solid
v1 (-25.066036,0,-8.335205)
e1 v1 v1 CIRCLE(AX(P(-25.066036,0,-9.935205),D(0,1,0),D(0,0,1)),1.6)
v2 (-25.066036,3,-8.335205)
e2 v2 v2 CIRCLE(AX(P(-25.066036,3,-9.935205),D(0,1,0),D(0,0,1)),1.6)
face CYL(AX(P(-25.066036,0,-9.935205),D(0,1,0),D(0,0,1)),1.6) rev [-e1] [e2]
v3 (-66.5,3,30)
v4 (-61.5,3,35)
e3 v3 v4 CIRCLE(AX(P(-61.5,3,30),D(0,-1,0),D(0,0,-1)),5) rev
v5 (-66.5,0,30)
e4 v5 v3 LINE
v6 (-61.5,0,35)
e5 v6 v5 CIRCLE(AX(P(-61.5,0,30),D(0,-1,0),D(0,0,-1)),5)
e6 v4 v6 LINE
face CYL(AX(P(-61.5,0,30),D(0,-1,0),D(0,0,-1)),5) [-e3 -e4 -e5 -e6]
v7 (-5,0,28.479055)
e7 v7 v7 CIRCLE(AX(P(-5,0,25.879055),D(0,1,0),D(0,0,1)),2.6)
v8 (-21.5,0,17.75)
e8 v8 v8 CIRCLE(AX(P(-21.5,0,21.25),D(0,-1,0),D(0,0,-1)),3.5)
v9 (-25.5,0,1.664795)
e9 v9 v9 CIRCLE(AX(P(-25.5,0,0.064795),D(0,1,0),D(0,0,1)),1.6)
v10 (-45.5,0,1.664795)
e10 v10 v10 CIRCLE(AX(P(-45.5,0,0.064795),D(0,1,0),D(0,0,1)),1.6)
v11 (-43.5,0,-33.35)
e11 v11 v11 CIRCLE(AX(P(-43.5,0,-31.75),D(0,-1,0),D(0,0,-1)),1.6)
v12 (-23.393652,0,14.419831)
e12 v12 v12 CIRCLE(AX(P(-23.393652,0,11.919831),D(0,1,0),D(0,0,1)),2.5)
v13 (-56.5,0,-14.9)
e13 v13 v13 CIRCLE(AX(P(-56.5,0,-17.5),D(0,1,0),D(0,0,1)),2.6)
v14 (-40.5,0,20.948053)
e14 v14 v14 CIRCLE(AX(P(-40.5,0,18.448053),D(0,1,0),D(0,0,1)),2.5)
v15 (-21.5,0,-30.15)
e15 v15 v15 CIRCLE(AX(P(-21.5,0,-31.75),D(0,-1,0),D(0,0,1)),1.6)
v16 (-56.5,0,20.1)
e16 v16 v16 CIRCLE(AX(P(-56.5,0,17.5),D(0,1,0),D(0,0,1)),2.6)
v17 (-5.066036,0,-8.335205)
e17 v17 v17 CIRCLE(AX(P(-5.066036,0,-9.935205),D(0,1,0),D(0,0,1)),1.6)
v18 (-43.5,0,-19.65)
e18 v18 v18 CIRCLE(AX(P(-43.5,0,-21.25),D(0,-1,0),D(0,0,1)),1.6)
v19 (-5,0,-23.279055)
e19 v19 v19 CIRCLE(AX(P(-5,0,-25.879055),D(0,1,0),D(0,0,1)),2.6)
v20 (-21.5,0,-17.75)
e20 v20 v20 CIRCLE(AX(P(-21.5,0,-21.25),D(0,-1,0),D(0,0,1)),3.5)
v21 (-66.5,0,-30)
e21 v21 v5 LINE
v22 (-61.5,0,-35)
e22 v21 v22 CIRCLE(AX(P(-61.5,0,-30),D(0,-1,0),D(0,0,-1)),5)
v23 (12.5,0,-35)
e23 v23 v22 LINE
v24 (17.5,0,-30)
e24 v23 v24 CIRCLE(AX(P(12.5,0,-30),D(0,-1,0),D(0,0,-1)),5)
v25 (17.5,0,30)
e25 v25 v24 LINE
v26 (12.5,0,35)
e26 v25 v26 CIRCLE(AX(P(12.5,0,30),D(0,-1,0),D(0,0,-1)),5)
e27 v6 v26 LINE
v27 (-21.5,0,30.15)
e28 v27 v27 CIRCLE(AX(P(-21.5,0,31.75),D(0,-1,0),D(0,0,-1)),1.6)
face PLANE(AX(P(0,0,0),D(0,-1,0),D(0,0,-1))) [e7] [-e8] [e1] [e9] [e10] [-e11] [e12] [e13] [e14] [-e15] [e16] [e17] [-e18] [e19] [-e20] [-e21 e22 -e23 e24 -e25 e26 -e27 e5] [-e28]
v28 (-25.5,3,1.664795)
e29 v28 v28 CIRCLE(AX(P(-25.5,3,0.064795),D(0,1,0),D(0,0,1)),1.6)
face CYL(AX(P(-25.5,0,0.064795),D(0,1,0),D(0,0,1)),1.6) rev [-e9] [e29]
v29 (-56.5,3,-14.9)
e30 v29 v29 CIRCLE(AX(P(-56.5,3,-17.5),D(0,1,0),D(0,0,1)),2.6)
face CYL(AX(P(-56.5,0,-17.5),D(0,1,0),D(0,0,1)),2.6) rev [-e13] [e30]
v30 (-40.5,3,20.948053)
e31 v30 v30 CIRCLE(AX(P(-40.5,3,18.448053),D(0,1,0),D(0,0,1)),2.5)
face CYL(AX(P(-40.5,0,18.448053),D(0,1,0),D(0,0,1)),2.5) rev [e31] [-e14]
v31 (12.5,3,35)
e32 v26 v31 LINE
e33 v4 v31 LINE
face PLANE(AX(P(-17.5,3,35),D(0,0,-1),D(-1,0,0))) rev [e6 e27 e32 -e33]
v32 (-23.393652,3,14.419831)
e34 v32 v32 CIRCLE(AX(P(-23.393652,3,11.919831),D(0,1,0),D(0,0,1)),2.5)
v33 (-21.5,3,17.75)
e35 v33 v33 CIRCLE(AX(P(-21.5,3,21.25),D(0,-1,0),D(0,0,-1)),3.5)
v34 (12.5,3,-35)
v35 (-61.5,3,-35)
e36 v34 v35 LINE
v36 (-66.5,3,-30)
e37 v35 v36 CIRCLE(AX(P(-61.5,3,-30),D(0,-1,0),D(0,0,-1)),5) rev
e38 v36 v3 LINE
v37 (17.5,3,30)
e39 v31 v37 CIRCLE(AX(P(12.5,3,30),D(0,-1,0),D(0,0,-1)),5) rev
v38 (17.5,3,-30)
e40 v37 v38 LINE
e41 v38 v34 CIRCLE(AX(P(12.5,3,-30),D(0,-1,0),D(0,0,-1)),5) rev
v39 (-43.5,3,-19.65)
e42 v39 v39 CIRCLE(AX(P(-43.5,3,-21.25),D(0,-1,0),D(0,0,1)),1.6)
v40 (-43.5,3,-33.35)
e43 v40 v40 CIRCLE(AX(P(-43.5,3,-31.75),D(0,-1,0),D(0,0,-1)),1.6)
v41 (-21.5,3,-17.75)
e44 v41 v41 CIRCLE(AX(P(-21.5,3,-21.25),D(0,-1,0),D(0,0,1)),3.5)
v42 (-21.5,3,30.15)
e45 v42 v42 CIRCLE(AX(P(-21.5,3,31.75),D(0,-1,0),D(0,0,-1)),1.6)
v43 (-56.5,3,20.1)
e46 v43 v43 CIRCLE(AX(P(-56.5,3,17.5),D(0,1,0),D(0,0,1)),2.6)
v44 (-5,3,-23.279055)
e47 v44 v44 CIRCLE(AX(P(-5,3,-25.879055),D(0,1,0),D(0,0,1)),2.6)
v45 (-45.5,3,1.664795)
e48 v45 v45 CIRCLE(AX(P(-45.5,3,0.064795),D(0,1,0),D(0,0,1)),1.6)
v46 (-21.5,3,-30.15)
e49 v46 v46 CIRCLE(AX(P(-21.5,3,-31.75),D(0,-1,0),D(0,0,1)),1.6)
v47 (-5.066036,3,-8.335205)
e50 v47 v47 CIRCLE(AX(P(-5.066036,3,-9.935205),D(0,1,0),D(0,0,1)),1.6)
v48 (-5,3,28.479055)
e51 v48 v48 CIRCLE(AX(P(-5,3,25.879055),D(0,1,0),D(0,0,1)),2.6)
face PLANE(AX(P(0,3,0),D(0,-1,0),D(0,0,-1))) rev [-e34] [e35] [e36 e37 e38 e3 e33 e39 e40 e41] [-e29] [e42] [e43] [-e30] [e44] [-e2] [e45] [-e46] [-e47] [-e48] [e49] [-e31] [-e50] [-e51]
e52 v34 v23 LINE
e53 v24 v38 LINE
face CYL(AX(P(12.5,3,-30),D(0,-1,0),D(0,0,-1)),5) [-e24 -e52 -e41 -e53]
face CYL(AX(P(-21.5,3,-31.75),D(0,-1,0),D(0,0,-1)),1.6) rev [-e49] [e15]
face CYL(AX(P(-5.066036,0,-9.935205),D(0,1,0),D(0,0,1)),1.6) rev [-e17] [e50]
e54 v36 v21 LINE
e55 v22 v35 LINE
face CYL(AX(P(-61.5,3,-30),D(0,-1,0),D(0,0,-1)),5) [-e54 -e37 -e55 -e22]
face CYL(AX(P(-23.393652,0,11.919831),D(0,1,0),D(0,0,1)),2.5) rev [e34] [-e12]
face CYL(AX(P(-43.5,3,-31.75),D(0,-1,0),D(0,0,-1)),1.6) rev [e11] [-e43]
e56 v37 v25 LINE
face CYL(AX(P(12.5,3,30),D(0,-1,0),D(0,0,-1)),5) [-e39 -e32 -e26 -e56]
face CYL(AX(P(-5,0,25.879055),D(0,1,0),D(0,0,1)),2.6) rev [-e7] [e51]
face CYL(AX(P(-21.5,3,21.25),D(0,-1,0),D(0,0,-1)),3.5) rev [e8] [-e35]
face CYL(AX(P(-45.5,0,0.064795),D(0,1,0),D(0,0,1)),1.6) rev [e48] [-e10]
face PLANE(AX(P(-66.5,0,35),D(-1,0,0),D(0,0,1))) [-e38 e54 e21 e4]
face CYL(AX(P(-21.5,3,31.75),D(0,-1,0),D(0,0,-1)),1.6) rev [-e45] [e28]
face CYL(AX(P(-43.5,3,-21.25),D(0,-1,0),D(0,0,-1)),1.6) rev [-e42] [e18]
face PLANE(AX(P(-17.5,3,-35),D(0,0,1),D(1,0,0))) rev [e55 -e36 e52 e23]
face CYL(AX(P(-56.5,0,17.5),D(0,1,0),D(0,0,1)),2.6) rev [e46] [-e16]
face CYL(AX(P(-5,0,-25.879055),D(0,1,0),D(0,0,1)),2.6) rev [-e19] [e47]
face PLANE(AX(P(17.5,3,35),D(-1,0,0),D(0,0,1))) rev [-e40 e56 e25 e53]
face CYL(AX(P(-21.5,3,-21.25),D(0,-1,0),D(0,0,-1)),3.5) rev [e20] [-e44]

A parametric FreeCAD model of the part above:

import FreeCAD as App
import Part
import Sketcher
Q = App.Units.Quantity


def edges_at(feature, points):
    """Names of the edges that pass closest to the given points."""
    edges = feature.Shape.Edges
    near = lambda p: min(range(len(edges)), key=lambda i: edges[i].distToShape(Part.Vertex(*p))[0])
    return sorted({f"Edge{near(p) + 1}" for p in points})


def add_polygon(sketch, points):
    """Adds a closed chain of lines whose ends are joined by coincident constraints."""
    first, n = sketch.GeometryCount, len(points)
    for a, b in zip(points, points[1:] + points[:1]):
        sketch.addGeometry(Part.LineSegment(App.Vector(*a, 0), App.Vector(*b, 0)), False)
    for i in range(n):
        sketch.addConstraint(Sketcher.Constraint("Coincident", first + i, 2, first + (i + 1) % n, 1))

doc = App.newDocument("Part")
params = doc.addObject("Spreadsheet::Sheet", "Params")
for row, (alias, value) in enumerate([
    ("sketch1_diameter", "5.2 mm"),
    ("sketch1_width", "35 mm"),
    ("sketch1_height", "70 mm"),
    ("pad1_length", "3 mm"),
    ("sketch2_diameter", "4.2 mm"),
    ("pocket1_length", "3 mm"),
    ("sketch3_diameter", "5.2 mm"),
    ("pad2_length", "3 mm"),
    ("sketch4_diameter", "4.2 mm"),
    ("sketch5_width", "49 mm"),
    ("sketch5_height", "70 mm"),
    ("pad3_length", "3 mm"),
    ("sketch6_diameter", "4.2 mm"),
    ("pocket3_length", "10 mm"),
    ("sketch7_diameter", "4.2 mm"),
    ("pocket4_length", "10 mm"),
    ("sketch8_diameter", "7 mm"),
    ("sketch8_diameter2", "3.2 mm"),
    ("fillet_radius", "5 mm"),
    ("sketch9_diameter", "4.2 mm"),
    ("pad4_length", "3 mm"),
    ("sketch10_diameter", "3 mm"),
    ("sketch11_diameter", "3 mm"),
    ("pad5_length", "3 mm"),
    ("sketch12_diameter", "5 mm"),
    ("sketch13_diameter", "5.2 mm"),
    ("pad6_length", "3 mm"),
    ("sketch14_diameter", "5 mm"),
    ("pocket8_length", "3 mm"),
    ("pad7_length", "3 mm"),
    ("sketch16_diameter", "5 mm"),
    ("sketch17_diameter", "3 mm"),
    ("sketch17_diameter2", "5 mm"),
    ("sketch17_diameter3", "4.2 mm"),
    ("pad8_length", "3 mm"),
    ("sketch18_diameter", "3 mm"),
    ("sketch19_diameter", "3 mm"),
    ("pad9_length", "3 mm"),
    ("sketch20_diameter", "2.4 mm"),
    ("sketch21_diameter", "3 mm"),
    ("sketch22_diameter", "2.4 mm"),
    ("pad10_length", "3 mm"),
    ("sketch23_diameter", "5 mm"),
    ("pad11_length", "3 mm"),
    ("sketch24_diameter", "2.4 mm"),
    ("sketch25_diameter", "3 mm"),
    ("pad12_length", "3 mm"),
    ("sketch26_diameter", "5 mm"),
    ("sketch27_diameter", "4.2 mm"),
    ("pad13_length", "3 mm"),
    ("sketch28_diameter", "5 mm"),
    ("pad14_length", "3 mm"),
    ("sketch29_diameter", "2.4 mm"),
    ("sketch30_diameter", "3.2 mm"),
    ("sketch30_diameter2", "5.2 mm"),
], start=1):
    params.set(f"A{row}", alias)
    params.set(f"B{row}", "=" + value)
    params.setAlias(f"B{row}", alias)

body = doc.addObject("PartDesign::Body", "Body")

sketch1 = body.newObject("Sketcher::SketchObject", "Sketch")
sketch1.AttachmentSupport = (doc.getObject("XZ_Plane"), [""])
sketch1.MapMode = "FlatFace"
add_polygon(sketch1, [(-17.5, -35), (-17.5, 35), (17.5, 35), (17.5, -35)])
sketch1.addGeometry(Part.Circle(App.Vector(-7.5, 22.5, 0), App.Vector(0, 0, 1), 2.6), False)
sketch1.addGeometry(Part.Circle(App.Vector(-7.5, 10, 0), App.Vector(0, 0, 1), 2.6), False)
sketch1.addGeometry(Part.Circle(App.Vector(-7.5, 0, 0), App.Vector(0, 0, 1), 2.6), False)
sketch1.addGeometry(Part.Circle(App.Vector(-7.5, -10, 0), App.Vector(0, 0, 1), 2.6), False)
sketch1.addGeometry(Part.Circle(App.Vector(-7.5, -22.5, 0), App.Vector(0, 0, 1), 2.6), False)
sketch1.addConstraint(Sketcher.Constraint("Vertical", 0))
sketch1.addConstraint(Sketcher.Constraint("Horizontal", 1))
sketch1.addConstraint(Sketcher.Constraint("Vertical", 2))
sketch1.addConstraint(Sketcher.Constraint("Horizontal", 3))
sketch1.addConstraint(Sketcher.Constraint("Equal", 4, 5))
sketch1.addConstraint(Sketcher.Constraint("Equal", 5, 6))
sketch1.addConstraint(Sketcher.Constraint("Equal", 6, 7))
sketch1.addConstraint(Sketcher.Constraint("Equal", 7, 8))
sketch1.addConstraint(Sketcher.Constraint("Symmetric", 0, 2, 2, 2, -1, 1))
sketch1.addConstraint(Sketcher.Constraint("Symmetric", 5, 3, 7, 3, -1))
sketch1.addConstraint(Sketcher.Constraint("Symmetric", 4, 3, 8, 3, -1))
sketch1.addConstraint(Sketcher.Constraint("PointOnObject", 6, 3, -1))
sketch1.addConstraint(Sketcher.Constraint("Vertical", 4, 3, 5, 3))
sketch1.addConstraint(Sketcher.Constraint("Vertical", 5, 3, 6, 3))
sketch1.addConstraint(Sketcher.Constraint("Diameter", 4, Q("5.2 mm")))
sketch1.addConstraint(Sketcher.Constraint("DistanceX", 1, 1, 1, 2, Q("35 mm")))
sketch1.addConstraint(Sketcher.Constraint("DistanceY", 0, 1, 0, 2, Q("70 mm")))
sketch1.addConstraint(Sketcher.Constraint("DistanceY", -1, 1, 5, 3, Q("10 mm")))
sketch1.addConstraint(Sketcher.Constraint("DistanceY", 8, 3, 4, 3, Q("45 mm")))
sketch1.addConstraint(Sketcher.Constraint("DistanceX", 0, 2, 4, 3, Q("10 mm")))
sketch1.setExpression("Constraints[18]", "Params.sketch1_diameter")
sketch1.setExpression("Constraints[19]", "Params.sketch1_width")
sketch1.setExpression("Constraints[20]", "Params.sketch1_height")
pad1 = body.newObject("PartDesign::Pad", "Pad")
pad1.Profile = sketch1
pad1.setExpression("Length", "Params.pad1_length")
pad1.Reversed = True

sketch2 = body.newObject("Sketcher::SketchObject", "Sketch001")
sketch2.AttachmentSupport = (doc.getObject("XZ_Plane"), [""])
sketch2.MapMode = "FlatFace"
sketch2.AttachmentOffset = App.Placement(App.Vector(0, 0, -3), App.Rotation())
sketch2.addGeometry(Part.Circle(App.Vector(10, 0, 0), App.Vector(0, 0, 1), 2.1), False)
sketch2.addConstraint(Sketcher.Constraint("PointOnObject", 0, 3, -1))
sketch2.addConstraint(Sketcher.Constraint("Diameter", 0, Q("4.2 mm")))
sketch2.addConstraint(Sketcher.Constraint("DistanceX", -1, 1, 0, 3, Q("10 mm")))
sketch2.setExpression("Constraints[1]", "Params.sketch2_diameter")
pocket1 = body.newObject("PartDesign::Pocket", "Pocket")
pocket1.Profile = sketch2
pocket1.setExpression("Length", "Params.pocket1_length")
pocket1.Reversed = True

sketch3 = body.newObject("Sketcher::SketchObject", "Sketch002")
sketch3.AttachmentSupport = (doc.getObject("XZ_Plane"), [""])
sketch3.MapMode = "FlatFace"
sketch3.AttachmentOffset = App.Placement(App.Vector(0, 0, -3), App.Rotation())
sketch3.addGeometry(Part.Circle(App.Vector(-7.5, 10, 0), App.Vector(0, 0, 1), 2.6), False)
sketch3.addGeometry(Part.Circle(App.Vector(-7.5, -10, 0), App.Vector(0, 0, 1), 2.6), False)
sketch3.addConstraint(Sketcher.Constraint("Equal", 0, 1))
sketch3.addConstraint(Sketcher.Constraint("Symmetric", 0, 3, 1, 3, -1))
sketch3.addConstraint(Sketcher.Constraint("Diameter", 0, Q("5.2 mm")))
sketch3.addConstraint(Sketcher.Constraint("DistanceY", -1, 1, 0, 3, Q("10 mm")))
sketch3.addConstraint(Sketcher.Constraint("DistanceX", 0, 3, -1, 1, Q("7.5 mm")))
sketch3.setExpression("Constraints[2]", "Params.sketch3_diameter")
pad2 = body.newObject("PartDesign::Pad", "Pad001")
pad2.Profile = sketch3
pad2.setExpression("Length", "Params.pad2_length")

sketch4 = body.newObject("Sketcher::SketchObject", "Sketch003")
sketch4.AttachmentSupport = (doc.getObject("XZ_Plane"), [""])
sketch4.MapMode = "FlatFace"
sketch4.AttachmentOffset = App.Placement(App.Vector(0, 0, -3), App.Rotation())
sketch4.addGeometry(Part.Circle(App.Vector(10, -22.5, 0), App.Vector(0, 0, 1), 2.1), False)
sketch4.addGeometry(Part.Circle(App.Vector(10, 22.5, 0), App.Vector(0, 0, 1), 2.1), False)
sketch4.addConstraint(Sketcher.Constraint("Equal", 0, 1))
sketch4.addConstraint(Sketcher.Constraint("Symmetric", 0, 3, 1, 3, -1))
sketch4.addConstraint(Sketcher.Constraint("Diameter", 0, Q("4.2 mm")))
sketch4.addConstraint(Sketcher.Constraint("DistanceX", -1, 1, 0, 3, Q("10 mm")))
sketch4.addConstraint(Sketcher.Constraint("DistanceY", 0, 3, 1, 3, Q("45 mm")))
sketch4.setExpression("Constraints[2]", "Params.sketch4_diameter")
pocket2 = body.newObject("PartDesign::Pocket", "Pocket001")
pocket2.Profile = sketch4
pocket2.Type = "ThroughAll"
pocket2.Reversed = True

sketch5 = body.newObject("Sketcher::SketchObject", "Sketch004")
sketch5.AttachmentSupport = (doc.getObject("XZ_Plane"), [""])
sketch5.MapMode = "FlatFace"
sketch5.AttachmentOffset = App.Placement(App.Vector(0, 0, -3), App.Rotation())
add_polygon(sketch5, [(-66.5, -35), (-66.5, 35), (-17.5, 35), (-17.5, -35)])
sketch5.addConstraint(Sketcher.Constraint("Vertical", 0))
sketch5.addConstraint(Sketcher.Constraint("Horizontal", 1))
sketch5.addConstraint(Sketcher.Constraint("Vertical", 2))
sketch5.addConstraint(Sketcher.Constraint("Horizontal", 3))
sketch5.addConstraint(Sketcher.Constraint("DistanceX", 1, 1, 1, 2, Q("49 mm")))
sketch5.addConstraint(Sketcher.Constraint("DistanceY", 0, 1, 0, 2, Q("70 mm")))
sketch5.addConstraint(Sketcher.Constraint("DistanceY", -1, 1, 0, 2, Q("35 mm")))
sketch5.addConstraint(Sketcher.Constraint("DistanceX", 0, 2, -1, 1, Q("66.5 mm")))
sketch5.setExpression("Constraints[8]", "Params.sketch5_width")
sketch5.setExpression("Constraints[9]", "Params.sketch5_height")
pad3 = body.newObject("PartDesign::Pad", "Pad002")
pad3.Profile = sketch5
pad3.setExpression("Length", "Params.pad3_length")

sketch6 = body.newObject("Sketcher::SketchObject", "Sketch005")
sketch6.AttachmentSupport = (doc.getObject("XZ_Plane"), [""])
sketch6.MapMode = "FlatFace"
sketch6.AttachmentOffset = App.Placement(App.Vector(0, 0, -3), App.Rotation())
sketch6.addGeometry(Part.Circle(App.Vector(-44.5, 0, 0), App.Vector(0, 0, 1), 2.1), False)
sketch6.addGeometry(Part.Circle(App.Vector(-36.5, 0, 0), App.Vector(0, 0, 1), 2.1), False)
sketch6.addConstraint(Sketcher.Constraint("Equal", 0, 1))
sketch6.addConstraint(Sketcher.Constraint("PointOnObject", 0, 3, -1))
sketch6.addConstraint(Sketcher.Constraint("PointOnObject", 1, 3, -1))
sketch6.addConstraint(Sketcher.Constraint("Diameter", 0, Q("4.2 mm")))
sketch6.addConstraint(Sketcher.Constraint("DistanceX", 0, 3, 1, 3, Q("8 mm")))
sketch6.addConstraint(Sketcher.Constraint("DistanceX", 0, 3, -1, 1, Q("44.5 mm")))
sketch6.setExpression("Constraints[3]", "Params.sketch6_diameter")
pocket3 = body.newObject("PartDesign::Pocket", "Pocket002")
pocket3.Profile = sketch6
pocket3.setExpression("Length", "Params.pocket3_length")
pocket3.Reversed = True

sketch7 = body.newObject("Sketcher::SketchObject", "Sketch006")
sketch7.AttachmentSupport = (doc.getObject("XZ_Plane"), [""])
sketch7.MapMode = "FlatFace"
sketch7.AttachmentOffset = App.Placement(App.Vector(0, 0, -3), App.Rotation())
sketch7.addGeometry(Part.Circle(App.Vector(-56.5, -17.5, 0), App.Vector(0, 0, 1), 2.1), False)
sketch7.addGeometry(Part.Circle(App.Vector(-56.5, 17.5, 0), App.Vector(0, 0, 1), 2.1), False)
sketch7.addConstraint(Sketcher.Constraint("Equal", 0, 1))
sketch7.addConstraint(Sketcher.Constraint("Symmetric", 0, 3, 1, 3, -1))
sketch7.addConstraint(Sketcher.Constraint("Diameter", 0, Q("4.2 mm")))
sketch7.addConstraint(Sketcher.Constraint("DistanceY", 0, 3, 1, 3, Q("35 mm")))
sketch7.addConstraint(Sketcher.Constraint("DistanceX", 0, 3, -1, 1, Q("56.5 mm")))
sketch7.setExpression("Constraints[2]", "Params.sketch7_diameter")
pocket4 = body.newObject("PartDesign::Pocket", "Pocket003")
pocket4.Profile = sketch7
pocket4.setExpression("Length", "Params.pocket4_length")
pocket4.Reversed = True

sketch8 = body.newObject("Sketcher::SketchObject", "Sketch007")
sketch8.AttachmentSupport = (doc.getObject("XZ_Plane"), [""])
sketch8.MapMode = "FlatFace"
sketch8.addGeometry(Part.Circle(App.Vector(-43.5, -21.25, 0), App.Vector(0, 0, 1), 1.6), False)
sketch8.addGeometry(Part.Circle(App.Vector(-21.5, -31.75, 0), App.Vector(0, 0, 1), 1.6), False)
sketch8.addGeometry(Part.Circle(App.Vector(-43.5, -31.75, 0), App.Vector(0, 0, 1), 1.6), False)
sketch8.addGeometry(Part.Circle(App.Vector(-43.5, 21.25, 0), App.Vector(0, 0, 1), 1.6), False)
sketch8.addGeometry(Part.Circle(App.Vector(-21.5, 31.75, 0), App.Vector(0, 0, 1), 1.6), False)
sketch8.addGeometry(Part.Circle(App.Vector(-43.5, 31.75, 0), App.Vector(0, 0, 1), 1.6), False)
sketch8.addGeometry(Part.Circle(App.Vector(-21.5, 21.25, 0), App.Vector(0, 0, 1), 3.5), False)
sketch8.addGeometry(Part.Circle(App.Vector(-21.5, -21.25, 0), App.Vector(0, 0, 1), 3.5), False)
sketch8.addConstraint(Sketcher.Constraint("Equal", 0, 1))
sketch8.addConstraint(Sketcher.Constraint("Equal", 1, 2))
sketch8.addConstraint(Sketcher.Constraint("Equal", 2, 3))
sketch8.addConstraint(Sketcher.Constraint("Equal", 3, 4))
sketch8.addConstraint(Sketcher.Constraint("Equal", 4, 5))
sketch8.addConstraint(Sketcher.Constraint("Equal", 6, 7))
sketch8.addConstraint(Sketcher.Constraint("Symmetric", 0, 3, 3, 3, -1))
sketch8.addConstraint(Sketcher.Constraint("Symmetric", 1, 3, 4, 3, -1))
sketch8.addConstraint(Sketcher.Constraint("Symmetric", 2, 3, 5, 3, -1))
sketch8.addConstraint(Sketcher.Constraint("Symmetric", 6, 3, 7, 3, -1))
sketch8.addConstraint(Sketcher.Constraint("Horizontal", 1, 3, 2, 3))
sketch8.addConstraint(Sketcher.Constraint("Horizontal", 3, 3, 6, 3))
sketch8.addConstraint(Sketcher.Constraint("Vertical", 0, 3, 2, 3))
sketch8.addConstraint(Sketcher.Constraint("Vertical", 4, 3, 6, 3))
sketch8.addConstraint(Sketcher.Constraint("Diameter", 6, Q("7 mm")))
sketch8.addConstraint(Sketcher.Constraint("Diameter", 0, Q("3.2 mm")))
sketch8.addConstraint(Sketcher.Constraint("DistanceX", 0, 3, 1, 3, Q("22 mm")))
sketch8.addConstraint(Sketcher.Constraint("DistanceY", 2, 3, 3, 3, Q("53 mm")))
sketch8.addConstraint(Sketcher.Constraint("DistanceX", 0, 3, -1, 1, Q("43.5 mm")))
sketch8.addConstraint(Sketcher.Constraint("DistanceY", 1, 3, 0, 3, Q("10.5 mm")))
sketch8.setExpression("Constraints[14]", "Params.sketch8_diameter")
sketch8.setExpression("Constraints[15]", "Params.sketch8_diameter2")
pocket5 = body.newObject("PartDesign::Pocket", "Pocket004")
pocket5.Profile = sketch8
pocket5.Type = "ThroughAll"
doc.recompute()

fillet = body.newObject("PartDesign::Fillet", "Fillet")
fillet.Base = (pocket5, edges_at(pocket5, [
    (-66.5, 1.5, 35),
    (-66.5, 1.5, -35),
    (17.5, 1.5, 35),
    (17.5, 1.5, -35),
]))
fillet.setExpression("Radius", "Params.fillet_radius")

sketch9 = body.newObject("Sketcher::SketchObject", "Sketch008")
sketch9.AttachmentSupport = (doc.getObject("XZ_Plane"), [""])
sketch9.MapMode = "FlatFace"
sketch9.AttachmentOffset = App.Placement(App.Vector(0, 0, -3), App.Rotation())
sketch9.addGeometry(Part.Circle(App.Vector(-36.5, 0, 0), App.Vector(0, 0, 1), 2.1), False)
sketch9.addGeometry(Part.Circle(App.Vector(-44.5, 0, 0), App.Vector(0, 0, 1), 2.1), False)
sketch9.addConstraint(Sketcher.Constraint("Equal", 0, 1))
sketch9.addConstraint(Sketcher.Constraint("PointOnObject", 0, 3, -1))
sketch9.addConstraint(Sketcher.Constraint("PointOnObject", 1, 3, -1))
sketch9.addConstraint(Sketcher.Constraint("Diameter", 0, Q("4.2 mm")))
sketch9.addConstraint(Sketcher.Constraint("DistanceX", 1, 3, 0, 3, Q("8 mm")))
sketch9.addConstraint(Sketcher.Constraint("DistanceX", 0, 3, -1, 1, Q("36.5 mm")))
sketch9.setExpression("Constraints[3]", "Params.sketch9_diameter")
pad4 = body.newObject("PartDesign::Pad", "Pad003")
pad4.Profile = sketch9
pad4.setExpression("Length", "Params.pad4_length")

sketch10 = body.newObject("Sketcher::SketchObject", "Sketch009")
sketch10.AttachmentSupport = (doc.getObject("XZ_Plane"), [""])
sketch10.MapMode = "FlatFace"
sketch10.AttachmentOffset = App.Placement(App.Vector(0, 0, -3), App.Rotation())
sketch10.addGeometry(Part.Circle(App.Vector(-52.5, -0.000001, 0), App.Vector(0, 0, 1), 1.5), False)
sketch10.addGeometry(Part.Circle(App.Vector(-28.5, -0.000001, 0), App.Vector(0, 0, 1), 1.5), False)
sketch10.addConstraint(Sketcher.Constraint("Equal", 0, 1))
sketch10.addConstraint(Sketcher.Constraint("PointOnObject", 0, 3, -1))
sketch10.addConstraint(Sketcher.Constraint("PointOnObject", 1, 3, -1))
sketch10.addConstraint(Sketcher.Constraint("Diameter", 0, Q("3 mm")))
sketch10.addConstraint(Sketcher.Constraint("DistanceX", 0, 3, 1, 3, Q("24 mm")))
sketch10.addConstraint(Sketcher.Constraint("DistanceX", 0, 3, -1, 1, Q("52.5 mm")))
sketch10.setExpression("Constraints[3]", "Params.sketch10_diameter")
pocket6 = body.newObject("PartDesign::Pocket", "Pocket005")
pocket6.Profile = sketch10
pocket6.Type = "ThroughAll"
pocket6.Reversed = True

sketch11 = body.newObject("Sketcher::SketchObject", "Sketch010")
sketch11.AttachmentSupport = (doc.getObject("XZ_Plane"), [""])
sketch11.MapMode = "FlatFace"
sketch11.AttachmentOffset = App.Placement(App.Vector(0, 0, -3), App.Rotation())
sketch11.addGeometry(Part.Circle(App.Vector(-28.5, -0.000001, 0), App.Vector(0, 0, 1), 1.5), False)
sketch11.addConstraint(Sketcher.Constraint("PointOnObject", 0, 3, -1))
sketch11.addConstraint(Sketcher.Constraint("Diameter", 0, Q("3 mm")))
sketch11.addConstraint(Sketcher.Constraint("DistanceX", 0, 3, -1, 1, Q("28.5 mm")))
sketch11.setExpression("Constraints[1]", "Params.sketch11_diameter")
pad5 = body.newObject("PartDesign::Pad", "Pad004")
pad5.Profile = sketch11
pad5.setExpression("Length", "Params.pad5_length")

sketch12 = body.newObject("Sketcher::SketchObject", "Sketch011")
sketch12.AttachmentSupport = (doc.getObject("XZ_Plane"), [""])
sketch12.MapMode = "FlatFace"
sketch12.AttachmentOffset = App.Placement(App.Vector(0, 0, -3), App.Rotation())
sketch12.addGeometry(Part.Circle(App.Vector(-23.393651, -12.166498, 0), App.Vector(0, 0, 1), 2.5), False)
sketch12.addGeometry(Part.Circle(App.Vector(-23.393652, 11.919831, 0), App.Vector(0, 0, 1), 2.5), False)
sketch12.addConstraint(Sketcher.Constraint("Equal", 0, 1))
sketch12.addConstraint(Sketcher.Constraint("Vertical", 0, 3, 1, 3))
sketch12.addConstraint(Sketcher.Constraint("Diameter", 0, Q("5 mm")))
sketch12.addConstraint(Sketcher.Constraint("DistanceX", 0, 3, -1, 1, Q("23.393651 mm")))
sketch12.addConstraint(Sketcher.Constraint("DistanceY", -1, 1, 1, 3, Q("11.919831 mm")))
sketch12.addConstraint(Sketcher.Constraint("DistanceY", 0, 3, 1, 3, Q("24.086328 mm")))
sketch12.setExpression("Constraints[2]", "Params.sketch12_diameter")
pocket7 = body.newObject("PartDesign::Pocket", "Pocket006")
pocket7.Profile = sketch12
pocket7.Type = "ThroughAll"
pocket7.Reversed = True

sketch13 = body.newObject("Sketcher::SketchObject", "Sketch012")
sketch13.AttachmentSupport = (doc.getObject("XZ_Plane"), [""])
sketch13.MapMode = "FlatFace"
sketch13.AttachmentOffset = App.Placement(App.Vector(0, 0, -3), App.Rotation())
sketch13.addGeometry(Part.Circle(App.Vector(-7.5, -22.5, 0), App.Vector(0, 0, 1), 2.6), False)
sketch13.addGeometry(Part.Circle(App.Vector(-7.5, 0, 0), App.Vector(0, 0, 1), 2.6), False)
sketch13.addGeometry(Part.Circle(App.Vector(-7.5, 22.5, 0), App.Vector(0, 0, 1), 2.6), False)
sketch13.addConstraint(Sketcher.Constraint("Equal", 0, 1))
sketch13.addConstraint(Sketcher.Constraint("Equal", 1, 2))
sketch13.addConstraint(Sketcher.Constraint("Symmetric", 0, 3, 2, 3, -1))
sketch13.addConstraint(Sketcher.Constraint("PointOnObject", 1, 3, -1))
sketch13.addConstraint(Sketcher.Constraint("Vertical", 0, 3, 1, 3))
sketch13.addConstraint(Sketcher.Constraint("Diameter", 0, Q("5.2 mm")))
sketch13.addConstraint(Sketcher.Constraint("DistanceY", 0, 3, 2, 3, Q("45 mm")))
sketch13.addConstraint(Sketcher.Constraint("DistanceX", 0, 3, -1, 1, Q("7.5 mm")))
sketch13.setExpression("Constraints[5]", "Params.sketch13_diameter")
pad6 = body.newObject("PartDesign::Pad", "Pad005")
pad6.Profile = sketch13
pad6.setExpression("Length", "Params.pad6_length")

sketch14 = body.newObject("Sketcher::SketchObject", "Sketch013")
sketch14.AttachmentSupport = (doc.getObject("XZ_Plane"), [""])
sketch14.MapMode = "FlatFace"
sketch14.addGeometry(Part.Circle(App.Vector(-3.558761, 0, 0), App.Vector(0, 0, 1), 2.5), False)
sketch14.addGeometry(Part.Circle(App.Vector(-3.558761, 22.202338, 0), App.Vector(0, 0, 1), 2.5), False)
sketch14.addGeometry(Part.Circle(App.Vector(-3.558761, -23.518794, 0), App.Vector(0, 0, 1), 2.5), False)
sketch14.addConstraint(Sketcher.Constraint("Equal", 0, 1))
sketch14.addConstraint(Sketcher.Constraint("Equal", 1, 2))
sketch14.addConstraint(Sketcher.Constraint("PointOnObject", 0, 3, -1))
sketch14.addConstraint(Sketcher.Constraint("Vertical", 0, 3, 1, 3))
sketch14.addConstraint(Sketcher.Constraint("Vertical", 1, 3, 2, 3))
sketch14.addConstraint(Sketcher.Constraint("Diameter", 0, Q("5 mm")))
sketch14.addConstraint(Sketcher.Constraint("DistanceX", 0, 3, -1, 1, Q("3.558761 mm")))
sketch14.addConstraint(Sketcher.Constraint("DistanceY", -1, 1, 1, 3, Q("22.202338 mm")))
sketch14.addConstraint(Sketcher.Constraint("DistanceY", 2, 3, -1, 1, Q("23.518794 mm")))
sketch14.setExpression("Constraints[5]", "Params.sketch14_diameter")
pocket8 = body.newObject("PartDesign::Pocket", "Pocket007")
pocket8.Profile = sketch14
pocket8.setExpression("Length", "Params.pocket8_length")

sketch15 = body.newObject("Sketcher::SketchObject", "Sketch014")
sketch15.AttachmentSupport = (doc.getObject("XZ_Plane"), [""])
sketch15.MapMode = "FlatFace"
sketch15.addGeometry(Part.Circle(App.Vector(-43.5, 21.25, 0), App.Vector(0, 0, 1), 2.180799), False)
sketch15.addGeometry(Part.Circle(App.Vector(-43.5, 31.75, 0), App.Vector(0, 0, 1), 1.661771), False)
sketch15.addConstraint(Sketcher.Constraint("Vertical", 0, 3, 1, 3))
sketch15.addConstraint(Sketcher.Constraint("DistanceX", 0, 3, -1, 1, Q("43.5 mm")))
sketch15.addConstraint(Sketcher.Constraint("DistanceY", 0, 3, 1, 3, Q("10.5 mm")))
sketch15.addConstraint(Sketcher.Constraint("Diameter", 1, Q("3.323542 mm")))
sketch15.addConstraint(Sketcher.Constraint("DistanceY", -1, 1, 0, 3, Q("21.25 mm")))
sketch15.addConstraint(Sketcher.Constraint("Diameter", 0, Q("4.361597 mm")))
pad7 = body.newObject("PartDesign::Pad", "Pad006")
pad7.Profile = sketch15
pad7.setExpression("Length", "Params.pad7_length")
pad7.Reversed = True

sketch16 = body.newObject("Sketcher::SketchObject", "Sketch015")
sketch16.AttachmentSupport = (doc.getObject("XZ_Plane"), [""])
sketch16.MapMode = "FlatFace"
sketch16.AttachmentOffset = App.Placement(App.Vector(0, 0, -3), App.Rotation())
sketch16.addGeometry(Part.Circle(App.Vector(-40.5, -1.551947, 0), App.Vector(0, 0, 1), 2.5), False)
sketch16.addGeometry(Part.Circle(App.Vector(-40.5, 18.448053, 0), App.Vector(0, 0, 1), 2.5), False)
sketch16.addConstraint(Sketcher.Constraint("Equal", 0, 1))
sketch16.addConstraint(Sketcher.Constraint("Vertical", 0, 3, 1, 3))
sketch16.addConstraint(Sketcher.Constraint("Diameter", 0, Q("5 mm")))
sketch16.addConstraint(Sketcher.Constraint("DistanceY", 0, 3, 1, 3, Q("20 mm")))
sketch16.addConstraint(Sketcher.Constraint("DistanceX", 0, 3, -1, 1, Q("40.5 mm")))
sketch16.addConstraint(Sketcher.Constraint("DistanceY", 0, 3, -1, 1, Q("1.551947 mm")))
sketch16.setExpression("Constraints[2]", "Params.sketch16_diameter")
pocket9 = body.newObject("PartDesign::Pocket", "Pocket008")
pocket9.Profile = sketch16
pocket9.Type = "ThroughAll"
pocket9.Reversed = True

sketch17 = body.newObject("Sketcher::SketchObject", "Sketch016")
sketch17.AttachmentSupport = (doc.getObject("XZ_Plane"), [""])
sketch17.MapMode = "FlatFace"
sketch17.AttachmentOffset = App.Placement(App.Vector(0, 0, -3), App.Rotation())
sketch17.addGeometry(Part.Circle(App.Vector(-52.5, -0.000001, 0), App.Vector(0, 0, 1), 1.5), False)
sketch17.addGeometry(Part.Circle(App.Vector(-40.5, -1.551947, 0), App.Vector(0, 0, 1), 2.5), False)
sketch17.addGeometry(Part.Circle(App.Vector(-3.558761, 0, 0), App.Vector(0, 0, 1), 2.5), False)
sketch17.addGeometry(Part.Circle(App.Vector(10, 0, 0), App.Vector(0, 0, 1), 2.1), False)
sketch17.addConstraint(Sketcher.Constraint("Equal", 1, 2))
sketch17.addConstraint(Sketcher.Constraint("PointOnObject", 0, 3, -1))
sketch17.addConstraint(Sketcher.Constraint("PointOnObject", 2, 3, -1))
sketch17.addConstraint(Sketcher.Constraint("PointOnObject", 3, 3, -1))
sketch17.addConstraint(Sketcher.Constraint("Diameter", 0, Q("3 mm")))
sketch17.addConstraint(Sketcher.Constraint("Diameter", 1, Q("5 mm")))
sketch17.addConstraint(Sketcher.Constraint("Diameter", 3, Q("4.2 mm")))
sketch17.addConstraint(Sketcher.Constraint("DistanceX", -1, 1, 3, 3, Q("10 mm")))
sketch17.addConstraint(Sketcher.Constraint("DistanceX", 0, 3, 1, 3, Q("12 mm")))
sketch17.addConstraint(Sketcher.Constraint("DistanceX", 0, 3, -1, 1, Q("52.5 mm")))
sketch17.addConstraint(Sketcher.Constraint("DistanceX", 2, 3, -1, 1, Q("3.558761 mm")))
sketch17.addConstraint(Sketcher.Constraint("DistanceY", 1, 3, -1, 1, Q("1.551947 mm")))
sketch17.setExpression("Constraints[4]", "Params.sketch17_diameter")
sketch17.setExpression("Constraints[5]", "Params.sketch17_diameter2")
sketch17.setExpression("Constraints[6]", "Params.sketch17_diameter3")
pad8 = body.newObject("PartDesign::Pad", "Pad007")
pad8.Profile = sketch17
pad8.setExpression("Length", "Params.pad8_length")

sketch18 = body.newObject("Sketcher::SketchObject", "Sketch017")
sketch18.AttachmentSupport = (doc.getObject("XZ_Plane"), [""])
sketch18.MapMode = "FlatFace"
sketch18.AttachmentOffset = App.Placement(App.Vector(0, 0, -3), App.Rotation())
sketch18.addGeometry(Part.Circle(App.Vector(-52.5, 0, 0), App.Vector(0, 0, 1), 1.5), False)
sketch18.addGeometry(Part.Circle(App.Vector(-28.5, 0, 0), App.Vector(0, 0, 1), 1.5), False)
sketch18.addConstraint(Sketcher.Constraint("Equal", 0, 1))
sketch18.addConstraint(Sketcher.Constraint("PointOnObject", 0, 3, -1))
sketch18.addConstraint(Sketcher.Constraint("PointOnObject", 1, 3, -1))
sketch18.addConstraint(Sketcher.Constraint("Diameter", 0, Q("3 mm")))
sketch18.addConstraint(Sketcher.Constraint("DistanceX", 0, 3, 1, 3, Q("24 mm")))
sketch18.addConstraint(Sketcher.Constraint("DistanceX", 0, 3, -1, 1, Q("52.5 mm")))
sketch18.setExpression("Constraints[3]", "Params.sketch18_diameter")
pocket10 = body.newObject("PartDesign::Pocket", "Pocket009")
pocket10.Profile = sketch18
pocket10.Type = "ThroughAll"
pocket10.Reversed = True

sketch19 = body.newObject("Sketcher::SketchObject", "Sketch018")
sketch19.AttachmentSupport = (doc.getObject("XZ_Plane"), [""])
sketch19.MapMode = "FlatFace"
sketch19.AttachmentOffset = App.Placement(App.Vector(0, 0, -3), App.Rotation())
sketch19.addGeometry(Part.Circle(App.Vector(-52.5, 0, 0), App.Vector(0, 0, 1), 1.5), False)
sketch19.addGeometry(Part.Circle(App.Vector(-28.5, 0, 0), App.Vector(0, 0, 1), 1.5), False)
sketch19.addConstraint(Sketcher.Constraint("Equal", 0, 1))
sketch19.addConstraint(Sketcher.Constraint("PointOnObject", 0, 3, -1))
sketch19.addConstraint(Sketcher.Constraint("PointOnObject", 1, 3, -1))
sketch19.addConstraint(Sketcher.Constraint("Diameter", 0, Q("3 mm")))
sketch19.addConstraint(Sketcher.Constraint("DistanceX", 0, 3, 1, 3, Q("24 mm")))
sketch19.addConstraint(Sketcher.Constraint("DistanceX", 0, 3, -1, 1, Q("52.5 mm")))
sketch19.setExpression("Constraints[3]", "Params.sketch19_diameter")
pad9 = body.newObject("PartDesign::Pad", "Pad008")
pad9.Profile = sketch19
pad9.setExpression("Length", "Params.pad9_length")

sketch20 = body.newObject("Sketcher::SketchObject", "Sketch019")
sketch20.AttachmentSupport = (doc.getObject("XZ_Plane"), [""])
sketch20.MapMode = "FlatFace"
sketch20.AttachmentOffset = App.Placement(App.Vector(0, 0, -3), App.Rotation())
sketch20.addGeometry(Part.Circle(App.Vector(-45.5, 0.064795, 0), App.Vector(0, 0, 1), 1.2), False)
sketch20.addGeometry(Part.Circle(App.Vector(-25.5, 0.064795, 0), App.Vector(0, 0, 1), 1.2), False)
sketch20.addConstraint(Sketcher.Constraint("Equal", 0, 1))
sketch20.addConstraint(Sketcher.Constraint("Horizontal", 0, 3, 1, 3))
sketch20.addConstraint(Sketcher.Constraint("Diameter", 0, Q("2.4 mm")))
sketch20.addConstraint(Sketcher.Constraint("DistanceX", 0, 3, 1, 3, Q("20 mm")))
sketch20.addConstraint(Sketcher.Constraint("DistanceX", 0, 3, -1, 1, Q("45.5 mm")))
sketch20.addConstraint(Sketcher.Constraint("DistanceY", -1, 1, 0, 3, Q("0.064795 mm")))
sketch20.setExpression("Constraints[2]", "Params.sketch20_diameter")
pocket11 = body.newObject("PartDesign::Pocket", "Pocket010")
pocket11.Profile = sketch20
pocket11.Type = "ThroughAll"
pocket11.Reversed = True

sketch21 = body.newObject("Sketcher::SketchObject", "Sketch020")
sketch21.AttachmentSupport = (doc.getObject("XZ_Plane"), [""])
sketch21.MapMode = "FlatFace"
sketch21.addGeometry(Part.Circle(App.Vector(-52.5, 0, 0), App.Vector(0, 0, 1), 1.5), False)
sketch21.addGeometry(Part.Circle(App.Vector(-28.5, 0, 0), App.Vector(0, 0, 1), 1.5), False)
sketch21.addConstraint(Sketcher.Constraint("Equal", 0, 1))
sketch21.addConstraint(Sketcher.Constraint("PointOnObject", 0, 3, -1))
sketch21.addConstraint(Sketcher.Constraint("PointOnObject", 1, 3, -1))
sketch21.addConstraint(Sketcher.Constraint("Diameter", 0, Q("3 mm")))
sketch21.addConstraint(Sketcher.Constraint("DistanceX", 0, 3, 1, 3, Q("24 mm")))
sketch21.addConstraint(Sketcher.Constraint("DistanceX", 0, 3, -1, 1, Q("52.5 mm")))
sketch21.setExpression("Constraints[3]", "Params.sketch21_diameter")
pocket12 = body.newObject("PartDesign::Pocket", "Pocket011")
pocket12.Profile = sketch21
pocket12.Type = "ThroughAll"

sketch22 = body.newObject("Sketcher::SketchObject", "Sketch021")
sketch22.AttachmentSupport = (doc.getObject("XZ_Plane"), [""])
sketch22.MapMode = "FlatFace"
sketch22.addGeometry(Part.Circle(App.Vector(-25.5, 0.064795, 0), App.Vector(0, 0, 1), 1.2), False)
sketch22.addGeometry(Part.Circle(App.Vector(-45.5, 0.064795, 0), App.Vector(0, 0, 1), 1.228913), False)
sketch22.addConstraint(Sketcher.Constraint("Horizontal", 0, 3, 1, 3))
sketch22.addConstraint(Sketcher.Constraint("Diameter", 0, Q("2.4 mm")))
sketch22.addConstraint(Sketcher.Constraint("DistanceX", 1, 3, 0, 3, Q("20 mm")))
sketch22.addConstraint(Sketcher.Constraint("DistanceX", 0, 3, -1, 1, Q("25.5 mm")))
sketch22.addConstraint(Sketcher.Constraint("Diameter", 1, Q("2.457825 mm")))
sketch22.addConstraint(Sketcher.Constraint("DistanceY", -1, 1, 0, 3, Q("0.064795 mm")))
sketch22.setExpression("Constraints[1]", "Params.sketch22_diameter")
pad10 = body.newObject("PartDesign::Pad", "Pad009")
pad10.Profile = sketch22
pad10.setExpression("Length", "Params.pad10_length")
pad10.Reversed = True

sketch23 = body.newObject("Sketcher::SketchObject", "Sketch022")
sketch23.AttachmentSupport = (doc.getObject("XZ_Plane"), [""])
sketch23.MapMode = "FlatFace"
sketch23.AttachmentOffset = App.Placement(App.Vector(0, 0, -3), App.Rotation())
sketch23.addGeometry(Part.Circle(App.Vector(-3.558761, 22.202338, 0), App.Vector(0, 0, 1), 2.5), False)
sketch23.addGeometry(Part.Circle(App.Vector(-3.558761, -23.518794, 0), App.Vector(0, 0, 1), 2.5), False)
sketch23.addConstraint(Sketcher.Constraint("Equal", 0, 1))
sketch23.addConstraint(Sketcher.Constraint("Vertical", 0, 3, 1, 3))
sketch23.addConstraint(Sketcher.Constraint("Diameter", 0, Q("5 mm")))
sketch23.addConstraint(Sketcher.Constraint("DistanceX", 0, 3, -1, 1, Q("3.558761 mm")))
sketch23.addConstraint(Sketcher.Constraint("DistanceY", -1, 1, 0, 3, Q("22.202338 mm")))
sketch23.addConstraint(Sketcher.Constraint("DistanceY", 1, 3, -1, 1, Q("23.518794 mm")))
sketch23.setExpression("Constraints[2]", "Params.sketch23_diameter")
pad11 = body.newObject("PartDesign::Pad", "Pad010")
pad11.Profile = sketch23
pad11.setExpression("Length", "Params.pad11_length")

sketch24 = body.newObject("Sketcher::SketchObject", "Sketch023")
sketch24.AttachmentSupport = (doc.getObject("XZ_Plane"), [""])
sketch24.MapMode = "FlatFace"
sketch24.AttachmentOffset = App.Placement(App.Vector(0, 0, -3), App.Rotation())
sketch24.addGeometry(Part.Circle(App.Vector(-25.5, 0.064795, 0), App.Vector(0, 0, 1), 1.2), False)
sketch24.addGeometry(Part.Circle(App.Vector(-45.5, 0.064795, 0), App.Vector(0, 0, 1), 1.2), False)
sketch24.addConstraint(Sketcher.Constraint("Equal", 0, 1))
sketch24.addConstraint(Sketcher.Constraint("Horizontal", 0, 3, 1, 3))
sketch24.addConstraint(Sketcher.Constraint("Diameter", 0, Q("2.4 mm")))
sketch24.addConstraint(Sketcher.Constraint("DistanceX", 1, 3, 0, 3, Q("20 mm")))
sketch24.addConstraint(Sketcher.Constraint("DistanceX", 0, 3, -1, 1, Q("25.5 mm")))
sketch24.addConstraint(Sketcher.Constraint("DistanceY", -1, 1, 0, 3, Q("0.064795 mm")))
sketch24.setExpression("Constraints[2]", "Params.sketch24_diameter")
pocket13 = body.newObject("PartDesign::Pocket", "Pocket012")
pocket13.Profile = sketch24
pocket13.Type = "ThroughAll"
pocket13.Reversed = True

sketch25 = body.newObject("Sketcher::SketchObject", "Sketch024")
sketch25.AttachmentSupport = (doc.getObject("XZ_Plane"), [""])
sketch25.MapMode = "FlatFace"
sketch25.AttachmentOffset = App.Placement(App.Vector(0, 0, -3), App.Rotation())
sketch25.addGeometry(Part.Circle(App.Vector(-28.5, 0, 0), App.Vector(0, 0, 1), 1.5), False)
sketch25.addGeometry(Part.Circle(App.Vector(-52.5, 0, 0), App.Vector(0, 0, 1), 1.5), False)
sketch25.addConstraint(Sketcher.Constraint("Equal", 0, 1))
sketch25.addConstraint(Sketcher.Constraint("PointOnObject", 0, 3, -1))
sketch25.addConstraint(Sketcher.Constraint("PointOnObject", 1, 3, -1))
sketch25.addConstraint(Sketcher.Constraint("Diameter", 0, Q("3 mm")))
sketch25.addConstraint(Sketcher.Constraint("DistanceX", 1, 3, 0, 3, Q("24 mm")))
sketch25.addConstraint(Sketcher.Constraint("DistanceX", 0, 3, -1, 1, Q("28.5 mm")))
sketch25.setExpression("Constraints[3]", "Params.sketch25_diameter")
pad12 = body.newObject("PartDesign::Pad", "Pad011")
pad12.Profile = sketch25
pad12.setExpression("Length", "Params.pad12_length")

sketch26 = body.newObject("Sketcher::SketchObject", "Sketch025")
sketch26.AttachmentSupport = (doc.getObject("XZ_Plane"), [""])
sketch26.MapMode = "FlatFace"
sketch26.addGeometry(Part.Circle(App.Vector(-5, 25.879055, 0), App.Vector(0, 0, 1), 2.5), False)
sketch26.addGeometry(Part.Circle(App.Vector(-5, -25.879055, 0), App.Vector(0, 0, 1), 2.5), False)
sketch26.addConstraint(Sketcher.Constraint("Equal", 0, 1))
sketch26.addConstraint(Sketcher.Constraint("Symmetric", 0, 3, 1, 3, -1))
sketch26.addConstraint(Sketcher.Constraint("Diameter", 0, Q("5 mm")))
sketch26.addConstraint(Sketcher.Constraint("DistanceX", 0, 3, -1, 1, Q("5 mm")))
sketch26.addConstraint(Sketcher.Constraint("DistanceY", 1, 3, 0, 3, Q("51.758111 mm")))
sketch26.setExpression("Constraints[2]", "Params.sketch26_diameter")
pocket14 = body.newObject("PartDesign::Pocket", "Pocket013")
pocket14.Profile = sketch26
pocket14.Type = "ThroughAll"

sketch27 = body.newObject("Sketcher::SketchObject", "Sketch026")
sketch27.AttachmentSupport = (doc.getObject("XZ_Plane"), [""])
sketch27.MapMode = "FlatFace"
sketch27.AttachmentOffset = App.Placement(App.Vector(0, 0, -3), App.Rotation())
sketch27.addGeometry(Part.Circle(App.Vector(10, 22.5, 0), App.Vector(0, 0, 1), 2.622024), False)
sketch27.addGeometry(Part.Circle(App.Vector(10, -22.5, 0), App.Vector(0, 0, 1), 2.1), False)
sketch27.addConstraint(Sketcher.Constraint("Symmetric", 0, 3, 1, 3, -1))
sketch27.addConstraint(Sketcher.Constraint("Diameter", 1, Q("4.2 mm")))
sketch27.addConstraint(Sketcher.Constraint("DistanceX", -1, 1, 0, 3, Q("10 mm")))
sketch27.addConstraint(Sketcher.Constraint("DistanceY", 1, 3, 0, 3, Q("45 mm")))
sketch27.addConstraint(Sketcher.Constraint("Diameter", 0, Q("5.244047 mm")))
sketch27.setExpression("Constraints[1]", "Params.sketch27_diameter")
pad13 = body.newObject("PartDesign::Pad", "Pad012")
pad13.Profile = sketch27
pad13.setExpression("Length", "Params.pad13_length")

sketch28 = body.newObject("Sketcher::SketchObject", "Sketch027")
sketch28.AttachmentSupport = (doc.getObject("XZ_Plane"), [""])
sketch28.MapMode = "FlatFace"
sketch28.AttachmentOffset = App.Placement(App.Vector(0, 0, -3), App.Rotation())
sketch28.addGeometry(Part.Circle(App.Vector(-23.393651, -12.166498, 0), App.Vector(0, 0, 1), 2.5), False)
sketch28.addConstraint(Sketcher.Constraint("Diameter", 0, Q("5 mm")))
sketch28.addConstraint(Sketcher.Constraint("DistanceX", 0, 3, -1, 1, Q("23.393651 mm")))
sketch28.addConstraint(Sketcher.Constraint("DistanceY", 0, 3, -1, 1, Q("12.166498 mm")))
sketch28.setExpression("Constraints[0]", "Params.sketch28_diameter")
pad14 = body.newObject("PartDesign::Pad", "Pad013")
pad14.Profile = sketch28
pad14.setExpression("Length", "Params.pad14_length")

sketch29 = body.newObject("Sketcher::SketchObject", "Sketch028")
sketch29.AttachmentSupport = (doc.getObject("XZ_Plane"), [""])
sketch29.MapMode = "FlatFace"
sketch29.AttachmentOffset = App.Placement(App.Vector(0, 0, -3), App.Rotation())
sketch29.addGeometry(Part.Circle(App.Vector(-5.066036, -9.935205, 0), App.Vector(0, 0, 1), 1.2), False)
sketch29.addGeometry(Part.Circle(App.Vector(-25.066036, -9.935205, 0), App.Vector(0, 0, 1), 1.2), False)
sketch29.addConstraint(Sketcher.Constraint("Equal", 0, 1))
sketch29.addConstraint(Sketcher.Constraint("Horizontal", 0, 3, 1, 3))
sketch29.addConstraint(Sketcher.Constraint("Diameter", 0, Q("2.4 mm")))
sketch29.addConstraint(Sketcher.Constraint("DistanceX", 1, 3, 0, 3, Q("20 mm")))
sketch29.addConstraint(Sketcher.Constraint("DistanceX", 0, 3, -1, 1, Q("5.066036 mm")))
sketch29.addConstraint(Sketcher.Constraint("DistanceY", 0, 3, -1, 1, Q("9.935205 mm")))
sketch29.setExpression("Constraints[2]", "Params.sketch29_diameter")
pocket15 = body.newObject("PartDesign::Pocket", "Pocket014")
pocket15.Profile = sketch29
pocket15.Type = "ThroughAll"
pocket15.Reversed = True

sketch30 = body.newObject("Sketcher::SketchObject", "Sketch029")
sketch30.AttachmentSupport = (doc.getObject("XZ_Plane"), [""])
sketch30.MapMode = "FlatFace"
sketch30.AttachmentOffset = App.Placement(App.Vector(0, 0, -3), App.Rotation())
sketch30.addGeometry(Part.Circle(App.Vector(-45.5, 0.064795, 0), App.Vector(0, 0, 1), 1.6), False)
sketch30.addGeometry(Part.Circle(App.Vector(-25.5, 0.064795, 0), App.Vector(0, 0, 1), 1.6), False)
sketch30.addGeometry(Part.Circle(App.Vector(-25.066036, -9.935205, 0), App.Vector(0, 0, 1), 1.6), False)
sketch30.addGeometry(Part.Circle(App.Vector(-5.066036, -9.935205, 0), App.Vector(0, 0, 1), 1.6), False)
sketch30.addGeometry(Part.Circle(App.Vector(-5, -25.879055, 0), App.Vector(0, 0, 1), 2.6), False)
sketch30.addGeometry(Part.Circle(App.Vector(-5, 25.879055, 0), App.Vector(0, 0, 1), 2.6), False)
sketch30.addGeometry(Part.Circle(App.Vector(-56.5, -17.5, 0), App.Vector(0, 0, 1), 2.6), False)
sketch30.addGeometry(Part.Circle(App.Vector(-56.5, 17.5, 0), App.Vector(0, 0, 1), 2.6), False)
sketch30.addConstraint(Sketcher.Constraint("Equal", 0, 1))
sketch30.addConstraint(Sketcher.Constraint("Equal", 1, 2))
sketch30.addConstraint(Sketcher.Constraint("Equal", 2, 3))
sketch30.addConstraint(Sketcher.Constraint("Equal", 4, 5))
sketch30.addConstraint(Sketcher.Constraint("Equal", 5, 6))
sketch30.addConstraint(Sketcher.Constraint("Equal", 6, 7))
sketch30.addConstraint(Sketcher.Constraint("Symmetric", 4, 3, 5, 3, -1))
sketch30.addConstraint(Sketcher.Constraint("Symmetric", 6, 3, 7, 3, -1))
sketch30.addConstraint(Sketcher.Constraint("Horizontal", 0, 3, 1, 3))
sketch30.addConstraint(Sketcher.Constraint("Horizontal", 2, 3, 3, 3))
sketch30.addConstraint(Sketcher.Constraint("Diameter", 0, Q("3.2 mm")))
sketch30.addConstraint(Sketcher.Constraint("Diameter", 4, Q("5.2 mm")))
sketch30.addConstraint(Sketcher.Constraint("DistanceX", 4, 3, -1, 1, Q("5 mm")))
sketch30.addConstraint(Sketcher.Constraint("DistanceX", 0, 3, 1, 3, Q("20 mm")))
sketch30.addConstraint(Sketcher.Constraint("DistanceY", 2, 3, 1, 3, Q("10 mm")))
sketch30.addConstraint(Sketcher.Constraint("DistanceX", 2, 3, 3, 3, Q("20 mm")))
sketch30.addConstraint(Sketcher.Constraint("DistanceX", 6, 3, 0, 3, Q("11 mm")))
sketch30.addConstraint(Sketcher.Constraint("DistanceY", 6, 3, 7, 3, Q("35 mm")))
sketch30.addConstraint(Sketcher.Constraint("DistanceX", 0, 3, -1, 1, Q("45.5 mm")))
sketch30.addConstraint(Sketcher.Constraint("DistanceY", 4, 3, 3, 3, Q("15.94385 mm")))
sketch30.addConstraint(Sketcher.Constraint("DistanceY", 1, 3, 5, 3, Q("25.814261 mm")))
sketch30.addConstraint(Sketcher.Constraint("DistanceX", 2, 3, -1, 1, Q("25.066036 mm")))
sketch30.setExpression("Constraints[10]", "Params.sketch30_diameter")
sketch30.setExpression("Constraints[11]", "Params.sketch30_diameter2")
pocket16 = body.newObject("PartDesign::Pocket", "Pocket015")
pocket16.Profile = sketch30
pocket16.Type = "ThroughAll"
pocket16.Reversed = True

doc.recompute()
